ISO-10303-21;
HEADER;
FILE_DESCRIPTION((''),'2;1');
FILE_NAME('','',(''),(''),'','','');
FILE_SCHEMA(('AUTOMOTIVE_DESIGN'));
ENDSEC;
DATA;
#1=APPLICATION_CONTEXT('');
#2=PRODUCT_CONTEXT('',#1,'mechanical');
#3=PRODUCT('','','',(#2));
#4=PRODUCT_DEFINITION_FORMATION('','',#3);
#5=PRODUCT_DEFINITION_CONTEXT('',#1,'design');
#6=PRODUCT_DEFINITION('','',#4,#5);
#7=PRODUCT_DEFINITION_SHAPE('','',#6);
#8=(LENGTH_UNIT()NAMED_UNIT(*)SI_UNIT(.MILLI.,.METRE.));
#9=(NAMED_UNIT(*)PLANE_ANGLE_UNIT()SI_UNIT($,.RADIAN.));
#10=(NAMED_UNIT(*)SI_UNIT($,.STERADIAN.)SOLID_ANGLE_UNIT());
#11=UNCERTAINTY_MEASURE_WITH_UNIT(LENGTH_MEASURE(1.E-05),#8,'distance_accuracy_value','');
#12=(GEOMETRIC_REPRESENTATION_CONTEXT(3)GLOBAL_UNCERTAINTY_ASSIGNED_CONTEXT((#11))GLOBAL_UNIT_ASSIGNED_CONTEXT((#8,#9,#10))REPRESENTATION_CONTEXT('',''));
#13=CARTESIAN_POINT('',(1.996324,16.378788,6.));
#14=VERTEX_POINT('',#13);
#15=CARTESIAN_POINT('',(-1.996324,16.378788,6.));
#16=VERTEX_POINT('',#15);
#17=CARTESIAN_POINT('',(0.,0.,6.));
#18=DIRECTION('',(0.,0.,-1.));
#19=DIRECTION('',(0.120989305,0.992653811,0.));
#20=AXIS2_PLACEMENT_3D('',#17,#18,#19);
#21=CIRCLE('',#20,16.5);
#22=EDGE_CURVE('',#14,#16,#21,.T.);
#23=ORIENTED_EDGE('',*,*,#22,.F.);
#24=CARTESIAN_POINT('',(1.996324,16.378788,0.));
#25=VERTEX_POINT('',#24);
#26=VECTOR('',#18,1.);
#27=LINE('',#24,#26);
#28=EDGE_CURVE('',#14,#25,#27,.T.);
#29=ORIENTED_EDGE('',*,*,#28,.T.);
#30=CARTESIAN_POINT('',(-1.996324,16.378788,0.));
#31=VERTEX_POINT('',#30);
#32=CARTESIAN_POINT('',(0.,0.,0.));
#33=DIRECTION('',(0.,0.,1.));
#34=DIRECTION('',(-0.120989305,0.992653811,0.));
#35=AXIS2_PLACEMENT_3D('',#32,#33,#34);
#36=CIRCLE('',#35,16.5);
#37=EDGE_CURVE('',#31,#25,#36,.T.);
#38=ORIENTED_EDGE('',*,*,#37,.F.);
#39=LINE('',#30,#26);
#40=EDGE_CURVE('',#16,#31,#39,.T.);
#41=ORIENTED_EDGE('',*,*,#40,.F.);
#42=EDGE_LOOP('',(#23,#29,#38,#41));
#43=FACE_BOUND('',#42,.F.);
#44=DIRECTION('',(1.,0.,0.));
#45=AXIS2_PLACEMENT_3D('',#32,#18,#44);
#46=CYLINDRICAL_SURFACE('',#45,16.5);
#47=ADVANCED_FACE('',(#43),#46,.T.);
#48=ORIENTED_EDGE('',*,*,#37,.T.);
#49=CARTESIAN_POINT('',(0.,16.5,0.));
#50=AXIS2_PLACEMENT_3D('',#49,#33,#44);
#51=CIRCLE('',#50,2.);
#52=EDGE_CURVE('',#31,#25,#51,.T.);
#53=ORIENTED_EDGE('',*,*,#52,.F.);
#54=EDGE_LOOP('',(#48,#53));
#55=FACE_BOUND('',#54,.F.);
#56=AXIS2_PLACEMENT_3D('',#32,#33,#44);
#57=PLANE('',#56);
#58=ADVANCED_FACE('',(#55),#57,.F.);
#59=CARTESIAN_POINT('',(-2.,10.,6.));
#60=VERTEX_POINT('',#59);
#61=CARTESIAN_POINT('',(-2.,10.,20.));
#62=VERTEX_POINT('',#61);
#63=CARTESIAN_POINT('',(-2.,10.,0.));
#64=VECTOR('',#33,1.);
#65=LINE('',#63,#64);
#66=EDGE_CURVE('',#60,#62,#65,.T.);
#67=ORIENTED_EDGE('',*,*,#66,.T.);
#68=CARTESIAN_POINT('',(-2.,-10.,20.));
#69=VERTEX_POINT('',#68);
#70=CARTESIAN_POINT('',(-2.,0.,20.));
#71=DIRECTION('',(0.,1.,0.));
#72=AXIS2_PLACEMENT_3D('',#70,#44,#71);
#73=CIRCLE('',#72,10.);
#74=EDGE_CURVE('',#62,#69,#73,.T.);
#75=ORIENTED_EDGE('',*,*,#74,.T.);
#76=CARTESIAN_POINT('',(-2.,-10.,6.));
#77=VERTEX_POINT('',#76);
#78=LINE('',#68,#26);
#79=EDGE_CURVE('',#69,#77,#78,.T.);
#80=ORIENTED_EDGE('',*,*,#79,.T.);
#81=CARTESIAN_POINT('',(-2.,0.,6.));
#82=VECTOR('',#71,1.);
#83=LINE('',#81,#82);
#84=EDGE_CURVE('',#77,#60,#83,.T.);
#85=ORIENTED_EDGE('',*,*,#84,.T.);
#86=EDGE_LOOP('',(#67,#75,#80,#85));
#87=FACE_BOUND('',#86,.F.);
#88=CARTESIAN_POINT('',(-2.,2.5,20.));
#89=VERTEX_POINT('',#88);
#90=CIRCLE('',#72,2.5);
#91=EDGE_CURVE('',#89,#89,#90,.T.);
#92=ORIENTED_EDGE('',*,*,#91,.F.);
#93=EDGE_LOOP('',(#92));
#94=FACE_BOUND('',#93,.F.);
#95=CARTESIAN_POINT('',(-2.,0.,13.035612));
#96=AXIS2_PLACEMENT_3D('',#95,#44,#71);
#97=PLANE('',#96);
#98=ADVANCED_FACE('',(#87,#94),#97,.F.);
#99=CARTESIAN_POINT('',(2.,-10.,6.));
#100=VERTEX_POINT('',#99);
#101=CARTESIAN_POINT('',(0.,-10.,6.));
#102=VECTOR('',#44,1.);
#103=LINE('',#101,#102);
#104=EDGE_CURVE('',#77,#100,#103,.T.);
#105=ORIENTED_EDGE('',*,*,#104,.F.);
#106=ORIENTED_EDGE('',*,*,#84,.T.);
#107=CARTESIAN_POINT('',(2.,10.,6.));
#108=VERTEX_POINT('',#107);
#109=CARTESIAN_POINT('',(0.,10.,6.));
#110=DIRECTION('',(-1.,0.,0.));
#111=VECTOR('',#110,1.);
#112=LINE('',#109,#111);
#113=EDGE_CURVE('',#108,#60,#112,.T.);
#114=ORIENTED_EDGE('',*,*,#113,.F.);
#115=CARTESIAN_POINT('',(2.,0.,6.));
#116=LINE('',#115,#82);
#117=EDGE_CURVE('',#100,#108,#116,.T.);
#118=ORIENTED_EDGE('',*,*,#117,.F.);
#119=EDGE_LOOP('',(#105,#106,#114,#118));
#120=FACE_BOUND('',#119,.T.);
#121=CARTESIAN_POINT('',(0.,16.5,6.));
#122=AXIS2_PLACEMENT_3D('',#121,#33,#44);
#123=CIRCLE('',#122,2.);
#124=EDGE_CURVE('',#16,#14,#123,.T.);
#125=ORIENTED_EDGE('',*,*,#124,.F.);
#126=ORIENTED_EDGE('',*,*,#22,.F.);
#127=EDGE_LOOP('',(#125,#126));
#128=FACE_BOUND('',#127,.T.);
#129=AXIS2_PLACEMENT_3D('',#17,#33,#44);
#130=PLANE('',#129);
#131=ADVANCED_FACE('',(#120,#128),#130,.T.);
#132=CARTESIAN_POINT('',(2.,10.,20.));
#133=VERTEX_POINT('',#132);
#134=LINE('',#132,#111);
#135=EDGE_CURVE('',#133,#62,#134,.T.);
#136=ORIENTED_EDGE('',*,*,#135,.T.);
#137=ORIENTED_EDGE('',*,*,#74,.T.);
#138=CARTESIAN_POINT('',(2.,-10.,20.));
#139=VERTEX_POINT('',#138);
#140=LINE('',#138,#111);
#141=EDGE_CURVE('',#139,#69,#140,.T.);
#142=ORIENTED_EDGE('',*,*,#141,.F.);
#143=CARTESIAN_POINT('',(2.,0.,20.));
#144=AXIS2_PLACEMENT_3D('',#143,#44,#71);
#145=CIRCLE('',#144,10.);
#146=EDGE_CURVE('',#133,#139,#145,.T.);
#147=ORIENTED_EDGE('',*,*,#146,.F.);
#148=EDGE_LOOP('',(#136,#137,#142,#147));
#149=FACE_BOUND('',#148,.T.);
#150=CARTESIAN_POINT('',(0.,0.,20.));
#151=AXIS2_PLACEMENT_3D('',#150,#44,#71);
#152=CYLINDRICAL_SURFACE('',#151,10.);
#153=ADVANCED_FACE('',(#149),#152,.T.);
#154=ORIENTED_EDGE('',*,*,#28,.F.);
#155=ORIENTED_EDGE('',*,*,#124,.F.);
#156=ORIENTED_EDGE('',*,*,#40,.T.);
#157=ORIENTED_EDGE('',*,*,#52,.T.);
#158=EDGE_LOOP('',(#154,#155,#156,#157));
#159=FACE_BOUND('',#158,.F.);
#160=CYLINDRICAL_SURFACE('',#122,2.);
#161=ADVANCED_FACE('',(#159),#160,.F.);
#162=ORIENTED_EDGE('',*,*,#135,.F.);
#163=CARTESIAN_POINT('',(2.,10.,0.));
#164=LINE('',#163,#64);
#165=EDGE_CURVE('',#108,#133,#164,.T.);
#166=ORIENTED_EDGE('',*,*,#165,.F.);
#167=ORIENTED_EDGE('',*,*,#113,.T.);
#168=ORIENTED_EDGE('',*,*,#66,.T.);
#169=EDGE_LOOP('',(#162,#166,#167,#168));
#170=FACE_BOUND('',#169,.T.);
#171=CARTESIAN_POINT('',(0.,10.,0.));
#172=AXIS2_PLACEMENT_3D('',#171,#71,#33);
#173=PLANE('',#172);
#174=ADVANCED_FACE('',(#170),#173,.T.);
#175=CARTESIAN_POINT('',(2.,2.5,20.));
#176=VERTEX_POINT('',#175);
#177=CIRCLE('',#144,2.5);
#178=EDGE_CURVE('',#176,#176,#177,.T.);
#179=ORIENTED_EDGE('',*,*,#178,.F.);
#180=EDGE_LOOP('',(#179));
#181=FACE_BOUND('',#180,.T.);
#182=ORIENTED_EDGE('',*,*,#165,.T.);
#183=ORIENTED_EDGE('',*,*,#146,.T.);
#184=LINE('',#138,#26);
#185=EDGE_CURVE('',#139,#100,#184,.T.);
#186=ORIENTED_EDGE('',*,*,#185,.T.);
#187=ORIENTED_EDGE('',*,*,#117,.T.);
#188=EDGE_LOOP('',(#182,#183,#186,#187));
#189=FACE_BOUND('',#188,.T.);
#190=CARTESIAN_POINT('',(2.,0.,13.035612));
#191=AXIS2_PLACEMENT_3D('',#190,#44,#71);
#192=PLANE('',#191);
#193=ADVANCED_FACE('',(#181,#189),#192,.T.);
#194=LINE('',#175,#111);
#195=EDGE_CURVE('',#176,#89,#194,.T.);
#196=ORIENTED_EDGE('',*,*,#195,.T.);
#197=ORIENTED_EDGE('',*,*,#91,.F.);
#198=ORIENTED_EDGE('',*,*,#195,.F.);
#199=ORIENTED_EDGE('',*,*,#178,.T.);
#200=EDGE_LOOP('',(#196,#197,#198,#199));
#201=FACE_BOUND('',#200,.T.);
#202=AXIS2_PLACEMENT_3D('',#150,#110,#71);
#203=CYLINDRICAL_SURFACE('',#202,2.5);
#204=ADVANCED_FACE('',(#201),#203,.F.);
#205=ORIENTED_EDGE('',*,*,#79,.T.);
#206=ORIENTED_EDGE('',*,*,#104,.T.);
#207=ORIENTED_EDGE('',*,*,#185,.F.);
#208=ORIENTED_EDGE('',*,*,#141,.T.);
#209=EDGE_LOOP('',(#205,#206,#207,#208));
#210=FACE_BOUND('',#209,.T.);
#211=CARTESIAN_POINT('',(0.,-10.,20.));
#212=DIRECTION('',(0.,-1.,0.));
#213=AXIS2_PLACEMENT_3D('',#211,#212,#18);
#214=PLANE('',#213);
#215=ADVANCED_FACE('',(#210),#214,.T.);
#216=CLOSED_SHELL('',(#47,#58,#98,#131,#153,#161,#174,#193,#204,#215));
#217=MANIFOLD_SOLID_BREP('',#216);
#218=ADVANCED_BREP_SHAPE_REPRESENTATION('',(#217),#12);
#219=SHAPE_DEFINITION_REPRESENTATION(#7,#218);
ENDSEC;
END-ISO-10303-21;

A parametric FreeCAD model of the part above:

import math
import FreeCAD as App
import Part
import Sketcher

V = App.Vector
Q = App.Units.Quantity

doc = App.newDocument("Part")
params = doc.addObject("Spreadsheet::Sheet", "Params")
for row, (alias, value) in enumerate([
    ("sketch1_diameter", "33 mm"),
    ("pad1_length", "6 mm"),
    ("sketch2_diameter", "4 mm"),
    ("sketch3_diameter", "5 mm"),
    ("sketch3_radius", "10 mm"),
    ("pad2_length", "4 mm"),
], start=1):
    params.set(f"A{row}", alias)
    params.set(f"B{row}", "=" + value)
    params.setAlias(f"B{row}", alias)

body = doc.addObject("PartDesign::Body", "Body")

# Sketch on XY plane
sketch1 = body.newObject("Sketcher::SketchObject", "Sketch")
sketch1.AttachmentSupport = (doc.getObject("XY_Plane"), [""])
sketch1.MapMode = "FlatFace"
sketch1.addGeometry(Part.Circle(V(0, 0, 0), V(0, 0, 1), 16), False)
sketch1.addConstraint([
    Sketcher.Constraint("Coincident", 0, 3, -1, 1),
    Sketcher.Constraint("Diameter", 0, Q("33 mm")),
])
sketch1.setExpression("Constraints[1]", "Params.sketch1_diameter")
pad1 = body.newObject("PartDesign::Pad", "Pad")
pad1.Profile = sketch1
pad1.setExpression("Length", "Params.pad1_length")

# Sketch on XY plane
sketch2 = body.newObject("Sketcher::SketchObject", "Sketch001")
sketch2.AttachmentSupport = (doc.getObject("XY_Plane"), [""])
sketch2.MapMode = "FlatFace"
sketch2.AttachmentOffset = App.Placement(V(0, 0, 6), App.Rotation())
sketch2.addGeometry(Part.Circle(V(0, 16.5, 0), V(0, 0, 1), 2), False)
sketch2.addConstraint([
    Sketcher.Constraint("PointOnObject", 0, 3, -2),
    Sketcher.Constraint("Diameter", 0, Q("4 mm")),
    Sketcher.Constraint("DistanceY", -1, 1, 0, 3, Q("16.5 mm")),
])
sketch2.setExpression("Constraints[1]", "Params.sketch2_diameter")
pocket1 = body.newObject("PartDesign::Pocket", "Pocket")
pocket1.Profile = sketch2
pocket1.Type = "ThroughAll"

# Sketch on YZ plane
sketch3 = body.newObject("Sketcher::SketchObject", "Sketch002")
sketch3.AttachmentSupport = (doc.getObject("YZ_Plane"), [""])
sketch3.MapMode = "FlatFace"
sketch3.addGeometry([
    Part.LineSegment(V(-10, 20, 0), V(-10, 0, 0)),  # 0
    Part.LineSegment(V(-10, 0, 0), V(10, 0, 0)),  # 1
    Part.LineSegment(V(10, 0, 0), V(10, 20, 0)),  # 2
    Part.ArcOfCircle(Part.Circle(V(0, 20, 0), V(0, 0, 1), 10), math.radians(0), math.radians(180)),  # 3
    Part.Circle(V(0, 20, 0), V(0, 0, 1), 2.5),  # 4
], False)
sketch3.addConstraint([
    Sketcher.Constraint("Coincident", 0, 2, 1, 1),
    Sketcher.Constraint("Coincident", 1, 2, 2, 1),
    Sketcher.Constraint("Tangent", 2, 2, 3, 1),
    Sketcher.Constraint("Tangent", 3, 2, 0, 1),
    Sketcher.Constraint("Vertical", 0),
    Sketcher.Constraint("Horizontal", 1),
    Sketcher.Constraint("Vertical", 2),
    Sketcher.Constraint("Coincident", 4, 3, 3, 3),
    Sketcher.Constraint("Symmetric", 0, 2, 1, 2, -1, 1),
    Sketcher.Constraint("Equal", 1, 0),
    Sketcher.Constraint("Diameter", 4, Q("5 mm")),
    Sketcher.Constraint("Radius", 3, Q("10 mm")),
])
sketch3.setExpression("Constraints[10]", "Params.sketch3_diameter")
sketch3.setExpression("Constraints[11]", "Params.sketch3_radius")
pad2 = body.newObject("PartDesign::Pad", "Pad001")
pad2.Profile = sketch3
pad2.setExpression("Length", "Params.pad2_length")
pad2.Midplane = True

doc.recompute()
